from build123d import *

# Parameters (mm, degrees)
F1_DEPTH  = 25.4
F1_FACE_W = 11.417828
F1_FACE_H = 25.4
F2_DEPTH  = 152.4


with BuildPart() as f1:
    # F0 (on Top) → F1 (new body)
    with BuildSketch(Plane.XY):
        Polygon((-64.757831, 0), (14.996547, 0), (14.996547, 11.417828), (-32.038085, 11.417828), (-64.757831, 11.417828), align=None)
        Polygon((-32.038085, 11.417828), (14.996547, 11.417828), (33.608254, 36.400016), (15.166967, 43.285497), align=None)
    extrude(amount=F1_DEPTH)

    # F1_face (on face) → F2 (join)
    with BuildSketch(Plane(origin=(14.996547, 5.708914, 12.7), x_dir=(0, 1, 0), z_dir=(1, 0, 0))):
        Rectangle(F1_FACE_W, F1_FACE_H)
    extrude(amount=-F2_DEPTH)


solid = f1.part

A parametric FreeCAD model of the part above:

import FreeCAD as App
import Part
import Sketcher
Q = App.Units.Quantity

doc = App.newDocument("Part")
body = doc.addObject("PartDesign::Body", "Body")

sketch1 = doc.addObject("Sketcher::SketchObject", "Sketch")
body.addObject(sketch1)
sketch1.AttachmentSupport = (doc.XY_Plane, [""])
sketch1.MapMode = "FlatFace"
sketch1.addGeometry([
    Part.LineSegment(App.Vector(-65, 0, 0), App.Vector(15, 0, 0)),
    Part.LineSegment(App.Vector(15, 0, 0), App.Vector(15, 11, 0)),
    Part.LineSegment(App.Vector(15, 11, 0), App.Vector(34, 36, 0)),
    Part.LineSegment(App.Vector(34, 36, 0), App.Vector(15, 43, 0)),
    Part.LineSegment(App.Vector(15, 43, 0), App.Vector(-32, 11, 0)),
    Part.LineSegment(App.Vector(-32, 11, 0), App.Vector(-65, 11, 0)),
    Part.LineSegment(App.Vector(-65, 11, 0), App.Vector(-65, 0, 0)),
], False)
sketch1.addConstraint([
    Sketcher.Constraint("Coincident", 0, 2, 1, 1),
    Sketcher.Constraint("Coincident", 1, 2, 2, 1),
    Sketcher.Constraint("Coincident", 2, 2, 3, 1),
    Sketcher.Constraint("Coincident", 3, 2, 4, 1),
    Sketcher.Constraint("Coincident", 4, 2, 5, 1),
    Sketcher.Constraint("Coincident", 5, 2, 6, 1),
    Sketcher.Constraint("Coincident", 6, 2, 0, 1),
    Sketcher.Constraint("Horizontal", 0),
    Sketcher.Constraint("Vertical", 1),
    Sketcher.Constraint("Horizontal", 5),
    Sketcher.Constraint("Vertical", 6),
    Sketcher.Constraint("PointOnObject", 0, 2, -1),
    Sketcher.Constraint("Horizontal", 1, 2, 4, 2),
    Sketcher.Constraint("DistanceX", 0, 1, 0, 2, 79.754378),
    Sketcher.Constraint("Distance", 3, 19.684789),
    Sketcher.Constraint("Distance", 4, 56.954941),
    Sketcher.Constraint("DistanceX", 5, 2, 5, 1, 32.719746),
    Sketcher.Constraint("DistanceY", 1, 1, 1, 2, 11.417828),
    Sketcher.Constraint("DistanceX", 5, 2, -1, 1, 64.757831),
    Sketcher.Constraint("DistanceY", 1, 2, 2, 2, 24.982188),
    Sketcher.Constraint("DistanceY", 2, 2, 3, 2, 6.885481),
])
pad1 = doc.addObject("PartDesign::Pad", "Pad")
body.addObject(pad1)
pad1.Profile = sketch1
pad1.Length = Q("1 in")

sketch2 = doc.addObject("Sketcher::SketchObject", "Sketch001")
body.addObject(sketch2)
sketch2.AttachmentSupport = (doc.YZ_Plane, [""])
sketch2.MapMode = "FlatFace"
sketch2.AttachmentOffset = App.Placement(App.Vector(0, 0, 14.996547), App.Rotation())
sketch2.addGeometry([
    Part.LineSegment(App.Vector(0, 25, 0), App.Vector(0, 0, 0)),
    Part.LineSegment(App.Vector(0, 0, 0), App.Vector(11, 0, 0)),
    Part.LineSegment(App.Vector(11, 0, 0), App.Vector(11, 25, 0)),
    Part.LineSegment(App.Vector(11, 25, 0), App.Vector(0, 25, 0)),
], False)
sketch2.addConstraint([
    Sketcher.Constraint("Coincident", 0, 2, 1, 1),
    Sketcher.Constraint("Coincident", 1, 2, 2, 1),
    Sketcher.Constraint("Coincident", 2, 2, 3, 1),
    Sketcher.Constraint("Coincident", 3, 2, 0, 1),
    Sketcher.Constraint("Vertical", 0),
    Sketcher.Constraint("Horizontal", 1),
    Sketcher.Constraint("Vertical", 2),
    Sketcher.Constraint("Horizontal", 3),
    Sketcher.Constraint("Coincident", 0, 2, -1, 1),
    Sketcher.Constraint("DistanceY", 0, 2, 0, 1, Q("1 in")),
    Sketcher.Constraint("DistanceX", 1, 1, 1, 2, 11.417828),
])
pad2 = doc.addObject("PartDesign::Pad", "Pad001")
body.addObject(pad2)
pad2.Profile = sketch2
pad2.Length = Q("6 in")
pad2.Reversed = True

doc.recompute()
